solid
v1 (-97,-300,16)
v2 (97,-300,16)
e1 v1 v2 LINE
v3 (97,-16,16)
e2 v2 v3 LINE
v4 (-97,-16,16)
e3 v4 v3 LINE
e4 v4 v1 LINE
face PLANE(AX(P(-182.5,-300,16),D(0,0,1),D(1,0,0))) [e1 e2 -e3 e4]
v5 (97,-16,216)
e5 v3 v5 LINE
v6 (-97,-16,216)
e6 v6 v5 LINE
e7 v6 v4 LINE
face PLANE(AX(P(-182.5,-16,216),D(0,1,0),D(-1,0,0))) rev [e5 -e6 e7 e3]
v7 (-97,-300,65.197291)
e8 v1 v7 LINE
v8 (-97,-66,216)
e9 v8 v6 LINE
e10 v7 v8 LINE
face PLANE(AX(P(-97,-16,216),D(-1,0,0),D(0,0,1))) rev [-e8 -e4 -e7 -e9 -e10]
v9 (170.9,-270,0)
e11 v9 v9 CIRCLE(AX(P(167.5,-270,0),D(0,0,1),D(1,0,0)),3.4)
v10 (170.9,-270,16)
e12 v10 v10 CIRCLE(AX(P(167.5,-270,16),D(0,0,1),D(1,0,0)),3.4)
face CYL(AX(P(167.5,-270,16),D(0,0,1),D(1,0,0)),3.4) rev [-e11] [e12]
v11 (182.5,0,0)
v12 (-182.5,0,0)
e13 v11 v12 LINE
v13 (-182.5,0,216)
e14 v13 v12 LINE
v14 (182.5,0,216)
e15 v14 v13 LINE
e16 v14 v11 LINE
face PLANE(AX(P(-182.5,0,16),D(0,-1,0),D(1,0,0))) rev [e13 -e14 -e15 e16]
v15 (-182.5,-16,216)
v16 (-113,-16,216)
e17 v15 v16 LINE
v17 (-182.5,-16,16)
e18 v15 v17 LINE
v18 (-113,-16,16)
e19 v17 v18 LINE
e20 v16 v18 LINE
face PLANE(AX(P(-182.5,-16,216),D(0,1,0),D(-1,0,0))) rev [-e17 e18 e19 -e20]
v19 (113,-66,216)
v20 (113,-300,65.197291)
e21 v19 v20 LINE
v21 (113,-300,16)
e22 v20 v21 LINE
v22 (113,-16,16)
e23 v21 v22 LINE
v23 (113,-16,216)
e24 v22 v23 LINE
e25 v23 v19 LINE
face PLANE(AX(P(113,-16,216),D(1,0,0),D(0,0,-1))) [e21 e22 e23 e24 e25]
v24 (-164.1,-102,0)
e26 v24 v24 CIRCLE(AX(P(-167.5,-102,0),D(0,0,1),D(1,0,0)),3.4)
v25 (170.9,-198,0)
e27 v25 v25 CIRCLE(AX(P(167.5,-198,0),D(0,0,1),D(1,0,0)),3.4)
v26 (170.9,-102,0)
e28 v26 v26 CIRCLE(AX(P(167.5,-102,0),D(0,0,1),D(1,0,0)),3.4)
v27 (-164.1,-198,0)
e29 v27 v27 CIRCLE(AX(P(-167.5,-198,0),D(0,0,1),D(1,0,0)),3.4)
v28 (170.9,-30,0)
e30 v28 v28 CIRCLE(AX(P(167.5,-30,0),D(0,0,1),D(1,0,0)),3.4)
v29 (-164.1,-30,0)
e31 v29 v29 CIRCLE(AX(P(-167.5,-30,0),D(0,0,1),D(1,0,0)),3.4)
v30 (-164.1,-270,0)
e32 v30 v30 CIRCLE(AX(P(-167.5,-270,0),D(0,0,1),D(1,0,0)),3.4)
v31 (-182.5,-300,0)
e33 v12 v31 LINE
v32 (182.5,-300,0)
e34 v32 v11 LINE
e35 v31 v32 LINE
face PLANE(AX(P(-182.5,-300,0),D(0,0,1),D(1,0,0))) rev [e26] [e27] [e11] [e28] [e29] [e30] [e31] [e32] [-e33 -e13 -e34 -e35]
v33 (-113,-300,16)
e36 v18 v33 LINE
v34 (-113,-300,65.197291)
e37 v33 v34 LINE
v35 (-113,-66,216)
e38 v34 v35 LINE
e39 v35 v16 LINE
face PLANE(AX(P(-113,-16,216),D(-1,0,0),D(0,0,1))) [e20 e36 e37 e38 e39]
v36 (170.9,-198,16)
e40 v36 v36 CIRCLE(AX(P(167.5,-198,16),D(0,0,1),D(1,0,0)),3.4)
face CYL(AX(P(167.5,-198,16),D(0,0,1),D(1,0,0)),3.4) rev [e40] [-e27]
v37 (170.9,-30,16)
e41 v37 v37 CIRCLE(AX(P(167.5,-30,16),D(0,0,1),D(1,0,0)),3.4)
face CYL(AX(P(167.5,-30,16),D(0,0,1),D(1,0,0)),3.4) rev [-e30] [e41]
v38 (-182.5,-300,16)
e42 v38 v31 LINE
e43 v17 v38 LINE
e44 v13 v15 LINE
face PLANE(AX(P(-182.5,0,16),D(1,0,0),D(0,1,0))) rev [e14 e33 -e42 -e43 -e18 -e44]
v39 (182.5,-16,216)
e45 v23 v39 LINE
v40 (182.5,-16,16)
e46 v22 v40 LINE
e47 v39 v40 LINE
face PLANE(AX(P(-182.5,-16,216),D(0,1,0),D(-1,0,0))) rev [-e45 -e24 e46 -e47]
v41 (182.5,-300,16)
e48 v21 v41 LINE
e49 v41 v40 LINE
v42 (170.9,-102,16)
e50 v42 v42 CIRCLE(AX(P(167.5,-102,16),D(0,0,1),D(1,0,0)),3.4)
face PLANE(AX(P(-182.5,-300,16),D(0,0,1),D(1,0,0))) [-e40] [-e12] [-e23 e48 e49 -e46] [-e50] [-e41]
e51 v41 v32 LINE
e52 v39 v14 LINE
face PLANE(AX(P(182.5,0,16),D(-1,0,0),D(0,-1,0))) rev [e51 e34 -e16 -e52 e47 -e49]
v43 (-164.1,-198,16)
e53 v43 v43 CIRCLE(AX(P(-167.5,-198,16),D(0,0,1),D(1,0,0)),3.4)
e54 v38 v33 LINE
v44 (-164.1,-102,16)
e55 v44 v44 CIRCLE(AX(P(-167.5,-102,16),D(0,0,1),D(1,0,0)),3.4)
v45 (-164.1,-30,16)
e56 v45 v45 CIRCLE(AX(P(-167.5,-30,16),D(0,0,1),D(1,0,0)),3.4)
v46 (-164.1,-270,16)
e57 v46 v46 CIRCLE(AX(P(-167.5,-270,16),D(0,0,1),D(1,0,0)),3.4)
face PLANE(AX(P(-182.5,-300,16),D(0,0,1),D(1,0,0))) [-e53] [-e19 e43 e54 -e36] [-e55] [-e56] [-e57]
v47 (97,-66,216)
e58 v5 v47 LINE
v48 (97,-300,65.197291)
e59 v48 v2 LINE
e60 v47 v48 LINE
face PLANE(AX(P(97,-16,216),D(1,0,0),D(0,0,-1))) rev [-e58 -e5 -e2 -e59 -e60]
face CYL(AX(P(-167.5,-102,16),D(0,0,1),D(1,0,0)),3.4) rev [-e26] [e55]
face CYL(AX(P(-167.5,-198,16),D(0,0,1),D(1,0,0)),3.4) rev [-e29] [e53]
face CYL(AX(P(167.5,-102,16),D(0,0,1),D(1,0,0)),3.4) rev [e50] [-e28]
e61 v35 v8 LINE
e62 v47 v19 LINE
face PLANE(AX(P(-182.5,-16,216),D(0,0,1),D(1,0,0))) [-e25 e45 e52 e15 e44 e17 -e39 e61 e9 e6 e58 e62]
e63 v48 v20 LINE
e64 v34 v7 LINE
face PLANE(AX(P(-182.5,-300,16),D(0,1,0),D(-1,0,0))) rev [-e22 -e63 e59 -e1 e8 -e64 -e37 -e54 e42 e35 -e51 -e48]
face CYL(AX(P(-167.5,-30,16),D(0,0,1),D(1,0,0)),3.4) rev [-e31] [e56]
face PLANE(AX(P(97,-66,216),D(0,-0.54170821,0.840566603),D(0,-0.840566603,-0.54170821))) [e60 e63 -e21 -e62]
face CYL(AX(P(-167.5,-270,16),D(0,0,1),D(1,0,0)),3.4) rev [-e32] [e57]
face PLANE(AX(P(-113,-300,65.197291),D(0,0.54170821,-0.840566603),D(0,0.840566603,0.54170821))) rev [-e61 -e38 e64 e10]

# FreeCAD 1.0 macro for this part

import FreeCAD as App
import Part
import Sketcher
Q = App.Units.Quantity


def add_polygon(sketch, points):
    """Adds a closed chain of lines whose ends are joined by coincident constraints."""
    first, n = sketch.GeometryCount, len(points)
    for a, b in zip(points, points[1:] + points[:1]):
        sketch.addGeometry(Part.LineSegment(App.Vector(*a, 0), App.Vector(*b, 0)), False)
    for i in range(n):
        sketch.addConstraint(Sketcher.Constraint("Coincident", first + i, 2, first + (i + 1) % n, 1))

doc = App.newDocument("Part")
params = doc.addObject("Spreadsheet::Sheet", "Params")
for row, (alias, value) in enumerate([
    ("sketch1_width", "365 mm"),
    ("sketch1_height", "300 mm"),
    ("pad1_length", "16 mm"),
    ("sketch2_width", "365 mm"),
    ("sketch2_height", "16 mm"),
    ("pad2_length", "200 mm"),
    ("sketch3_width", "50 mm"),
    ("sketch3_width2", "284 mm"),
    ("sketch3_height", "200 mm"),
    ("pad3_length", "16 mm"),
    ("sketch4_width", "284 mm"),
    ("sketch4_width2", "50 mm"),
    ("sketch4_height", "200 mm"),
    ("pad4_length", "16 mm"),
    ("sketch5_diameter", "6.8 mm"),
    ("hole_diameter", "6.8 mm"),
    ("linearpattern_pitch", "335 mm"),
], start=1):
    params.set(f"A{row}", alias)
    params.set(f"B{row}", "=" + value)
    params.setAlias(f"B{row}", alias)

body = doc.addObject("PartDesign::Body", "Body")

# Sketch on XY plane
sketch1 = body.newObject("Sketcher::SketchObject", "Sketch")
sketch1.AttachmentSupport = (doc.getObject("XY_Plane"), [""])
sketch1.MapMode = "FlatFace"
add_polygon(sketch1, [(-182, 0), (-182, -300), (182, -300), (182, 0)])  # lines 0-3
sketch1.addConstraint([
    Sketcher.Constraint("Vertical", 0),
    Sketcher.Constraint("Horizontal", 1),
    Sketcher.Constraint("Vertical", 2),
    Sketcher.Constraint("Horizontal", 3),
    Sketcher.Constraint("Symmetric", 2, 2, 3, 2, -1, 1),
    Sketcher.Constraint("DistanceX", 1, 1, 1, 2, Q("365 mm")),
    Sketcher.Constraint("DistanceY", 0, 2, 0, 1, Q("300 mm")),
])
sketch1.setExpression("Constraints[9]", "Params.sketch1_width")
sketch1.setExpression("Constraints[10]", "Params.sketch1_height")
pad1 = body.newObject("PartDesign::Pad", "Pad")
pad1.Profile = sketch1
pad1.setExpression("Length", "Params.pad1_length")

# Sketch on XY plane
sketch2 = body.newObject("Sketcher::SketchObject", "Sketch001")
sketch2.AttachmentSupport = (doc.getObject("XY_Plane"), [""])
sketch2.MapMode = "FlatFace"
sketch2.AttachmentOffset = App.Placement(App.Vector(0, 0, 16), App.Rotation())
add_polygon(sketch2, [(-182, 0), (-182, -16), (182, -16), (182, 0)])  # lines 0-3
sketch2.addConstraint([
    Sketcher.Constraint("Vertical", 0),
    Sketcher.Constraint("Horizontal", 1),
    Sketcher.Constraint("Vertical", 2),
    Sketcher.Constraint("Horizontal", 3),
    Sketcher.Constraint("Symmetric", 2, 2, 3, 2, -1, 1),
    Sketcher.Constraint("DistanceX", 1, 1, 1, 2, Q("365 mm")),
    Sketcher.Constraint("DistanceY", 0, 2, 0, 1, Q("16 mm")),
])
sketch2.setExpression("Constraints[9]", "Params.sketch2_width")
sketch2.setExpression("Constraints[10]", "Params.sketch2_height")
pad2 = body.newObject("PartDesign::Pad", "Pad001")
pad2.Profile = sketch2
pad2.setExpression("Length", "Params.pad2_length")

# Sketch on YZ plane
sketch3 = body.newObject("Sketcher::SketchObject", "Sketch002")
sketch3.AttachmentSupport = (doc.getObject("YZ_Plane"), [""])
sketch3.MapMode = "FlatFace"
sketch3.AttachmentOffset = App.Placement(App.Vector(0, 0, 113), App.Rotation())
add_polygon(sketch3, [(-16, 216), (-66, 216), (-300, 65), (-300, 16), (-16, 16)])  # lines 0-4
sketch3.addConstraint([
    Sketcher.Constraint("Horizontal", 0),
    Sketcher.Constraint("Vertical", 2),
    Sketcher.Constraint("Horizontal", 3),
    Sketcher.Constraint("Vertical", 4),
    Sketcher.Constraint("DistanceX", 0, 2, 0, 1, Q("50 mm")),
    Sketcher.Constraint("DistanceX", 3, 1, 3, 2, Q("284 mm")),
    Sketcher.Constraint("DistanceY", 4, 1, 4, 2, Q("200 mm")),
    Sketcher.Constraint("DistanceX", 0, 2, -1, 1, Q("66 mm")),
    Sketcher.Constraint("DistanceY", -1, 1, 0, 2, Q("216 mm")),
    Sketcher.Constraint("Angle", 1, Q("-147.2 deg")),
])
sketch3.setExpression("Constraints[9]", "Params.sketch3_width")
sketch3.setExpression("Constraints[10]", "Params.sketch3_width2")
sketch3.setExpression("Constraints[11]", "Params.sketch3_height")
pad3 = body.newObject("PartDesign::Pad", "Pad002")
pad3.Profile = sketch3
pad3.setExpression("Length", "Params.pad3_length")
pad3.Reversed = True

# Sketch on YZ plane
sketch4 = body.newObject("Sketcher::SketchObject", "Sketch003")
sketch4.AttachmentSupport = (doc.getObject("YZ_Plane"), [""])
sketch4.MapMode = "FlatFace"
sketch4.AttachmentOffset = App.Placement(App.Vector(0, 0, -97), App.Rotation())
add_polygon(sketch4, [(-16, 216), (-16, 16), (-300, 16), (-300, 65), (-66, 216)])  # lines 0-4
sketch4.addConstraint([
    Sketcher.Constraint("Vertical", 0),
    Sketcher.Constraint("Horizontal", 1),
    Sketcher.Constraint("Vertical", 2),
    Sketcher.Constraint("Horizontal", 4),
    Sketcher.Constraint("DistanceX", 1, 2, 1, 1, Q("284 mm")),
    Sketcher.Constraint("DistanceX", 4, 1, 4, 2, Q("50 mm")),
    Sketcher.Constraint("DistanceY", 0, 2, 0, 1, Q("200 mm")),
    Sketcher.Constraint("DistanceX", 0, 2, -1, 1, Q("16 mm")),
    Sketcher.Constraint("DistanceY", -1, 1, 0, 2, Q("16 mm")),
    Sketcher.Constraint("Angle", 3, Q("32.8 deg")),
])
sketch4.setExpression("Constraints[9]", "Params.sketch4_width")
sketch4.setExpression("Constraints[10]", "Params.sketch4_width2")
sketch4.setExpression("Constraints[11]", "Params.sketch4_height")
pad4 = body.newObject("PartDesign::Pad", "Pad003")
pad4.Profile = sketch4
pad4.setExpression("Length", "Params.pad4_length")
pad4.Reversed = True

# Sketch on XY plane
sketch5 = body.newObject("Sketcher::SketchObject", "Sketch004")
sketch5.AttachmentSupport = (doc.getObject("XY_Plane"), [""])
sketch5.MapMode = "FlatFace"
sketch5.AttachmentOffset = App.Placement(App.Vector(0, 0, 16), App.Rotation())
sketch5.addGeometry([
    Part.Circle(App.Vector(167.5, -30, 0), App.Vector(0, 0, 1), 3.4),
    Part.Circle(App.Vector(167.5, -270, 0), App.Vector(0, 0, 1), 3.4),
    Part.Circle(App.Vector(167.5, -198, 0), App.Vector(0, 0, 1), 3.4),
    Part.Circle(App.Vector(167.5, -102, 0), App.Vector(0, 0, 1), 3.4),
], False)
sketch5.addConstraint([
    Sketcher.Constraint("Equal", 0, 1),
    Sketcher.Constraint("Equal", 1, 2),
    Sketcher.Constraint("Equal", 2, 3),
    Sketcher.Constraint("Vertical", 0, 3, 1, 3),
    Sketcher.Constraint("Vertical", 1, 3, 2, 3),
    Sketcher.Constraint("Vertical", 2, 3, 3, 3),
    Sketcher.Constraint("Diameter", 0, Q("6.8 mm")),
    Sketcher.Constraint("DistanceY", 0, 3, -1, 1, Q("30 mm")),
    Sketcher.Constraint("DistanceY", 1, 3, -1, 1, Q("270 mm")),
    Sketcher.Constraint("DistanceY", 2, 3, -1, 1, Q("198 mm")),
    Sketcher.Constraint("DistanceY", 3, 3, -1, 1, Q("102 mm")),
    Sketcher.Constraint("DistanceX", -1, 1, 0, 3, Q("167.5 mm")),
])
sketch5.setExpression("Constraints[6]", "Params.sketch5_diameter")
doc.recompute()
hole = body.newObject("PartDesign::Hole", "Hole")
hole.Profile = sketch5
hole.ThreadType = "None"
hole.setExpression("Diameter", "Params.hole_diameter")
hole.DepthType = "ThroughAll"
doc.recompute()

linearpattern = body.newObject("PartDesign::LinearPattern", "LinearPattern")
linearpattern.Originals = [hole]
linearpattern.Direction = (doc.getObject("X_Axis"), [""])
linearpattern.Mode = "offset"
linearpattern.setExpression("Offset", "Params.linearpattern_pitch")
linearpattern.Occurrences = 2
linearpattern.Reversed = True
body.Tip = linearpattern

doc.recompute()
